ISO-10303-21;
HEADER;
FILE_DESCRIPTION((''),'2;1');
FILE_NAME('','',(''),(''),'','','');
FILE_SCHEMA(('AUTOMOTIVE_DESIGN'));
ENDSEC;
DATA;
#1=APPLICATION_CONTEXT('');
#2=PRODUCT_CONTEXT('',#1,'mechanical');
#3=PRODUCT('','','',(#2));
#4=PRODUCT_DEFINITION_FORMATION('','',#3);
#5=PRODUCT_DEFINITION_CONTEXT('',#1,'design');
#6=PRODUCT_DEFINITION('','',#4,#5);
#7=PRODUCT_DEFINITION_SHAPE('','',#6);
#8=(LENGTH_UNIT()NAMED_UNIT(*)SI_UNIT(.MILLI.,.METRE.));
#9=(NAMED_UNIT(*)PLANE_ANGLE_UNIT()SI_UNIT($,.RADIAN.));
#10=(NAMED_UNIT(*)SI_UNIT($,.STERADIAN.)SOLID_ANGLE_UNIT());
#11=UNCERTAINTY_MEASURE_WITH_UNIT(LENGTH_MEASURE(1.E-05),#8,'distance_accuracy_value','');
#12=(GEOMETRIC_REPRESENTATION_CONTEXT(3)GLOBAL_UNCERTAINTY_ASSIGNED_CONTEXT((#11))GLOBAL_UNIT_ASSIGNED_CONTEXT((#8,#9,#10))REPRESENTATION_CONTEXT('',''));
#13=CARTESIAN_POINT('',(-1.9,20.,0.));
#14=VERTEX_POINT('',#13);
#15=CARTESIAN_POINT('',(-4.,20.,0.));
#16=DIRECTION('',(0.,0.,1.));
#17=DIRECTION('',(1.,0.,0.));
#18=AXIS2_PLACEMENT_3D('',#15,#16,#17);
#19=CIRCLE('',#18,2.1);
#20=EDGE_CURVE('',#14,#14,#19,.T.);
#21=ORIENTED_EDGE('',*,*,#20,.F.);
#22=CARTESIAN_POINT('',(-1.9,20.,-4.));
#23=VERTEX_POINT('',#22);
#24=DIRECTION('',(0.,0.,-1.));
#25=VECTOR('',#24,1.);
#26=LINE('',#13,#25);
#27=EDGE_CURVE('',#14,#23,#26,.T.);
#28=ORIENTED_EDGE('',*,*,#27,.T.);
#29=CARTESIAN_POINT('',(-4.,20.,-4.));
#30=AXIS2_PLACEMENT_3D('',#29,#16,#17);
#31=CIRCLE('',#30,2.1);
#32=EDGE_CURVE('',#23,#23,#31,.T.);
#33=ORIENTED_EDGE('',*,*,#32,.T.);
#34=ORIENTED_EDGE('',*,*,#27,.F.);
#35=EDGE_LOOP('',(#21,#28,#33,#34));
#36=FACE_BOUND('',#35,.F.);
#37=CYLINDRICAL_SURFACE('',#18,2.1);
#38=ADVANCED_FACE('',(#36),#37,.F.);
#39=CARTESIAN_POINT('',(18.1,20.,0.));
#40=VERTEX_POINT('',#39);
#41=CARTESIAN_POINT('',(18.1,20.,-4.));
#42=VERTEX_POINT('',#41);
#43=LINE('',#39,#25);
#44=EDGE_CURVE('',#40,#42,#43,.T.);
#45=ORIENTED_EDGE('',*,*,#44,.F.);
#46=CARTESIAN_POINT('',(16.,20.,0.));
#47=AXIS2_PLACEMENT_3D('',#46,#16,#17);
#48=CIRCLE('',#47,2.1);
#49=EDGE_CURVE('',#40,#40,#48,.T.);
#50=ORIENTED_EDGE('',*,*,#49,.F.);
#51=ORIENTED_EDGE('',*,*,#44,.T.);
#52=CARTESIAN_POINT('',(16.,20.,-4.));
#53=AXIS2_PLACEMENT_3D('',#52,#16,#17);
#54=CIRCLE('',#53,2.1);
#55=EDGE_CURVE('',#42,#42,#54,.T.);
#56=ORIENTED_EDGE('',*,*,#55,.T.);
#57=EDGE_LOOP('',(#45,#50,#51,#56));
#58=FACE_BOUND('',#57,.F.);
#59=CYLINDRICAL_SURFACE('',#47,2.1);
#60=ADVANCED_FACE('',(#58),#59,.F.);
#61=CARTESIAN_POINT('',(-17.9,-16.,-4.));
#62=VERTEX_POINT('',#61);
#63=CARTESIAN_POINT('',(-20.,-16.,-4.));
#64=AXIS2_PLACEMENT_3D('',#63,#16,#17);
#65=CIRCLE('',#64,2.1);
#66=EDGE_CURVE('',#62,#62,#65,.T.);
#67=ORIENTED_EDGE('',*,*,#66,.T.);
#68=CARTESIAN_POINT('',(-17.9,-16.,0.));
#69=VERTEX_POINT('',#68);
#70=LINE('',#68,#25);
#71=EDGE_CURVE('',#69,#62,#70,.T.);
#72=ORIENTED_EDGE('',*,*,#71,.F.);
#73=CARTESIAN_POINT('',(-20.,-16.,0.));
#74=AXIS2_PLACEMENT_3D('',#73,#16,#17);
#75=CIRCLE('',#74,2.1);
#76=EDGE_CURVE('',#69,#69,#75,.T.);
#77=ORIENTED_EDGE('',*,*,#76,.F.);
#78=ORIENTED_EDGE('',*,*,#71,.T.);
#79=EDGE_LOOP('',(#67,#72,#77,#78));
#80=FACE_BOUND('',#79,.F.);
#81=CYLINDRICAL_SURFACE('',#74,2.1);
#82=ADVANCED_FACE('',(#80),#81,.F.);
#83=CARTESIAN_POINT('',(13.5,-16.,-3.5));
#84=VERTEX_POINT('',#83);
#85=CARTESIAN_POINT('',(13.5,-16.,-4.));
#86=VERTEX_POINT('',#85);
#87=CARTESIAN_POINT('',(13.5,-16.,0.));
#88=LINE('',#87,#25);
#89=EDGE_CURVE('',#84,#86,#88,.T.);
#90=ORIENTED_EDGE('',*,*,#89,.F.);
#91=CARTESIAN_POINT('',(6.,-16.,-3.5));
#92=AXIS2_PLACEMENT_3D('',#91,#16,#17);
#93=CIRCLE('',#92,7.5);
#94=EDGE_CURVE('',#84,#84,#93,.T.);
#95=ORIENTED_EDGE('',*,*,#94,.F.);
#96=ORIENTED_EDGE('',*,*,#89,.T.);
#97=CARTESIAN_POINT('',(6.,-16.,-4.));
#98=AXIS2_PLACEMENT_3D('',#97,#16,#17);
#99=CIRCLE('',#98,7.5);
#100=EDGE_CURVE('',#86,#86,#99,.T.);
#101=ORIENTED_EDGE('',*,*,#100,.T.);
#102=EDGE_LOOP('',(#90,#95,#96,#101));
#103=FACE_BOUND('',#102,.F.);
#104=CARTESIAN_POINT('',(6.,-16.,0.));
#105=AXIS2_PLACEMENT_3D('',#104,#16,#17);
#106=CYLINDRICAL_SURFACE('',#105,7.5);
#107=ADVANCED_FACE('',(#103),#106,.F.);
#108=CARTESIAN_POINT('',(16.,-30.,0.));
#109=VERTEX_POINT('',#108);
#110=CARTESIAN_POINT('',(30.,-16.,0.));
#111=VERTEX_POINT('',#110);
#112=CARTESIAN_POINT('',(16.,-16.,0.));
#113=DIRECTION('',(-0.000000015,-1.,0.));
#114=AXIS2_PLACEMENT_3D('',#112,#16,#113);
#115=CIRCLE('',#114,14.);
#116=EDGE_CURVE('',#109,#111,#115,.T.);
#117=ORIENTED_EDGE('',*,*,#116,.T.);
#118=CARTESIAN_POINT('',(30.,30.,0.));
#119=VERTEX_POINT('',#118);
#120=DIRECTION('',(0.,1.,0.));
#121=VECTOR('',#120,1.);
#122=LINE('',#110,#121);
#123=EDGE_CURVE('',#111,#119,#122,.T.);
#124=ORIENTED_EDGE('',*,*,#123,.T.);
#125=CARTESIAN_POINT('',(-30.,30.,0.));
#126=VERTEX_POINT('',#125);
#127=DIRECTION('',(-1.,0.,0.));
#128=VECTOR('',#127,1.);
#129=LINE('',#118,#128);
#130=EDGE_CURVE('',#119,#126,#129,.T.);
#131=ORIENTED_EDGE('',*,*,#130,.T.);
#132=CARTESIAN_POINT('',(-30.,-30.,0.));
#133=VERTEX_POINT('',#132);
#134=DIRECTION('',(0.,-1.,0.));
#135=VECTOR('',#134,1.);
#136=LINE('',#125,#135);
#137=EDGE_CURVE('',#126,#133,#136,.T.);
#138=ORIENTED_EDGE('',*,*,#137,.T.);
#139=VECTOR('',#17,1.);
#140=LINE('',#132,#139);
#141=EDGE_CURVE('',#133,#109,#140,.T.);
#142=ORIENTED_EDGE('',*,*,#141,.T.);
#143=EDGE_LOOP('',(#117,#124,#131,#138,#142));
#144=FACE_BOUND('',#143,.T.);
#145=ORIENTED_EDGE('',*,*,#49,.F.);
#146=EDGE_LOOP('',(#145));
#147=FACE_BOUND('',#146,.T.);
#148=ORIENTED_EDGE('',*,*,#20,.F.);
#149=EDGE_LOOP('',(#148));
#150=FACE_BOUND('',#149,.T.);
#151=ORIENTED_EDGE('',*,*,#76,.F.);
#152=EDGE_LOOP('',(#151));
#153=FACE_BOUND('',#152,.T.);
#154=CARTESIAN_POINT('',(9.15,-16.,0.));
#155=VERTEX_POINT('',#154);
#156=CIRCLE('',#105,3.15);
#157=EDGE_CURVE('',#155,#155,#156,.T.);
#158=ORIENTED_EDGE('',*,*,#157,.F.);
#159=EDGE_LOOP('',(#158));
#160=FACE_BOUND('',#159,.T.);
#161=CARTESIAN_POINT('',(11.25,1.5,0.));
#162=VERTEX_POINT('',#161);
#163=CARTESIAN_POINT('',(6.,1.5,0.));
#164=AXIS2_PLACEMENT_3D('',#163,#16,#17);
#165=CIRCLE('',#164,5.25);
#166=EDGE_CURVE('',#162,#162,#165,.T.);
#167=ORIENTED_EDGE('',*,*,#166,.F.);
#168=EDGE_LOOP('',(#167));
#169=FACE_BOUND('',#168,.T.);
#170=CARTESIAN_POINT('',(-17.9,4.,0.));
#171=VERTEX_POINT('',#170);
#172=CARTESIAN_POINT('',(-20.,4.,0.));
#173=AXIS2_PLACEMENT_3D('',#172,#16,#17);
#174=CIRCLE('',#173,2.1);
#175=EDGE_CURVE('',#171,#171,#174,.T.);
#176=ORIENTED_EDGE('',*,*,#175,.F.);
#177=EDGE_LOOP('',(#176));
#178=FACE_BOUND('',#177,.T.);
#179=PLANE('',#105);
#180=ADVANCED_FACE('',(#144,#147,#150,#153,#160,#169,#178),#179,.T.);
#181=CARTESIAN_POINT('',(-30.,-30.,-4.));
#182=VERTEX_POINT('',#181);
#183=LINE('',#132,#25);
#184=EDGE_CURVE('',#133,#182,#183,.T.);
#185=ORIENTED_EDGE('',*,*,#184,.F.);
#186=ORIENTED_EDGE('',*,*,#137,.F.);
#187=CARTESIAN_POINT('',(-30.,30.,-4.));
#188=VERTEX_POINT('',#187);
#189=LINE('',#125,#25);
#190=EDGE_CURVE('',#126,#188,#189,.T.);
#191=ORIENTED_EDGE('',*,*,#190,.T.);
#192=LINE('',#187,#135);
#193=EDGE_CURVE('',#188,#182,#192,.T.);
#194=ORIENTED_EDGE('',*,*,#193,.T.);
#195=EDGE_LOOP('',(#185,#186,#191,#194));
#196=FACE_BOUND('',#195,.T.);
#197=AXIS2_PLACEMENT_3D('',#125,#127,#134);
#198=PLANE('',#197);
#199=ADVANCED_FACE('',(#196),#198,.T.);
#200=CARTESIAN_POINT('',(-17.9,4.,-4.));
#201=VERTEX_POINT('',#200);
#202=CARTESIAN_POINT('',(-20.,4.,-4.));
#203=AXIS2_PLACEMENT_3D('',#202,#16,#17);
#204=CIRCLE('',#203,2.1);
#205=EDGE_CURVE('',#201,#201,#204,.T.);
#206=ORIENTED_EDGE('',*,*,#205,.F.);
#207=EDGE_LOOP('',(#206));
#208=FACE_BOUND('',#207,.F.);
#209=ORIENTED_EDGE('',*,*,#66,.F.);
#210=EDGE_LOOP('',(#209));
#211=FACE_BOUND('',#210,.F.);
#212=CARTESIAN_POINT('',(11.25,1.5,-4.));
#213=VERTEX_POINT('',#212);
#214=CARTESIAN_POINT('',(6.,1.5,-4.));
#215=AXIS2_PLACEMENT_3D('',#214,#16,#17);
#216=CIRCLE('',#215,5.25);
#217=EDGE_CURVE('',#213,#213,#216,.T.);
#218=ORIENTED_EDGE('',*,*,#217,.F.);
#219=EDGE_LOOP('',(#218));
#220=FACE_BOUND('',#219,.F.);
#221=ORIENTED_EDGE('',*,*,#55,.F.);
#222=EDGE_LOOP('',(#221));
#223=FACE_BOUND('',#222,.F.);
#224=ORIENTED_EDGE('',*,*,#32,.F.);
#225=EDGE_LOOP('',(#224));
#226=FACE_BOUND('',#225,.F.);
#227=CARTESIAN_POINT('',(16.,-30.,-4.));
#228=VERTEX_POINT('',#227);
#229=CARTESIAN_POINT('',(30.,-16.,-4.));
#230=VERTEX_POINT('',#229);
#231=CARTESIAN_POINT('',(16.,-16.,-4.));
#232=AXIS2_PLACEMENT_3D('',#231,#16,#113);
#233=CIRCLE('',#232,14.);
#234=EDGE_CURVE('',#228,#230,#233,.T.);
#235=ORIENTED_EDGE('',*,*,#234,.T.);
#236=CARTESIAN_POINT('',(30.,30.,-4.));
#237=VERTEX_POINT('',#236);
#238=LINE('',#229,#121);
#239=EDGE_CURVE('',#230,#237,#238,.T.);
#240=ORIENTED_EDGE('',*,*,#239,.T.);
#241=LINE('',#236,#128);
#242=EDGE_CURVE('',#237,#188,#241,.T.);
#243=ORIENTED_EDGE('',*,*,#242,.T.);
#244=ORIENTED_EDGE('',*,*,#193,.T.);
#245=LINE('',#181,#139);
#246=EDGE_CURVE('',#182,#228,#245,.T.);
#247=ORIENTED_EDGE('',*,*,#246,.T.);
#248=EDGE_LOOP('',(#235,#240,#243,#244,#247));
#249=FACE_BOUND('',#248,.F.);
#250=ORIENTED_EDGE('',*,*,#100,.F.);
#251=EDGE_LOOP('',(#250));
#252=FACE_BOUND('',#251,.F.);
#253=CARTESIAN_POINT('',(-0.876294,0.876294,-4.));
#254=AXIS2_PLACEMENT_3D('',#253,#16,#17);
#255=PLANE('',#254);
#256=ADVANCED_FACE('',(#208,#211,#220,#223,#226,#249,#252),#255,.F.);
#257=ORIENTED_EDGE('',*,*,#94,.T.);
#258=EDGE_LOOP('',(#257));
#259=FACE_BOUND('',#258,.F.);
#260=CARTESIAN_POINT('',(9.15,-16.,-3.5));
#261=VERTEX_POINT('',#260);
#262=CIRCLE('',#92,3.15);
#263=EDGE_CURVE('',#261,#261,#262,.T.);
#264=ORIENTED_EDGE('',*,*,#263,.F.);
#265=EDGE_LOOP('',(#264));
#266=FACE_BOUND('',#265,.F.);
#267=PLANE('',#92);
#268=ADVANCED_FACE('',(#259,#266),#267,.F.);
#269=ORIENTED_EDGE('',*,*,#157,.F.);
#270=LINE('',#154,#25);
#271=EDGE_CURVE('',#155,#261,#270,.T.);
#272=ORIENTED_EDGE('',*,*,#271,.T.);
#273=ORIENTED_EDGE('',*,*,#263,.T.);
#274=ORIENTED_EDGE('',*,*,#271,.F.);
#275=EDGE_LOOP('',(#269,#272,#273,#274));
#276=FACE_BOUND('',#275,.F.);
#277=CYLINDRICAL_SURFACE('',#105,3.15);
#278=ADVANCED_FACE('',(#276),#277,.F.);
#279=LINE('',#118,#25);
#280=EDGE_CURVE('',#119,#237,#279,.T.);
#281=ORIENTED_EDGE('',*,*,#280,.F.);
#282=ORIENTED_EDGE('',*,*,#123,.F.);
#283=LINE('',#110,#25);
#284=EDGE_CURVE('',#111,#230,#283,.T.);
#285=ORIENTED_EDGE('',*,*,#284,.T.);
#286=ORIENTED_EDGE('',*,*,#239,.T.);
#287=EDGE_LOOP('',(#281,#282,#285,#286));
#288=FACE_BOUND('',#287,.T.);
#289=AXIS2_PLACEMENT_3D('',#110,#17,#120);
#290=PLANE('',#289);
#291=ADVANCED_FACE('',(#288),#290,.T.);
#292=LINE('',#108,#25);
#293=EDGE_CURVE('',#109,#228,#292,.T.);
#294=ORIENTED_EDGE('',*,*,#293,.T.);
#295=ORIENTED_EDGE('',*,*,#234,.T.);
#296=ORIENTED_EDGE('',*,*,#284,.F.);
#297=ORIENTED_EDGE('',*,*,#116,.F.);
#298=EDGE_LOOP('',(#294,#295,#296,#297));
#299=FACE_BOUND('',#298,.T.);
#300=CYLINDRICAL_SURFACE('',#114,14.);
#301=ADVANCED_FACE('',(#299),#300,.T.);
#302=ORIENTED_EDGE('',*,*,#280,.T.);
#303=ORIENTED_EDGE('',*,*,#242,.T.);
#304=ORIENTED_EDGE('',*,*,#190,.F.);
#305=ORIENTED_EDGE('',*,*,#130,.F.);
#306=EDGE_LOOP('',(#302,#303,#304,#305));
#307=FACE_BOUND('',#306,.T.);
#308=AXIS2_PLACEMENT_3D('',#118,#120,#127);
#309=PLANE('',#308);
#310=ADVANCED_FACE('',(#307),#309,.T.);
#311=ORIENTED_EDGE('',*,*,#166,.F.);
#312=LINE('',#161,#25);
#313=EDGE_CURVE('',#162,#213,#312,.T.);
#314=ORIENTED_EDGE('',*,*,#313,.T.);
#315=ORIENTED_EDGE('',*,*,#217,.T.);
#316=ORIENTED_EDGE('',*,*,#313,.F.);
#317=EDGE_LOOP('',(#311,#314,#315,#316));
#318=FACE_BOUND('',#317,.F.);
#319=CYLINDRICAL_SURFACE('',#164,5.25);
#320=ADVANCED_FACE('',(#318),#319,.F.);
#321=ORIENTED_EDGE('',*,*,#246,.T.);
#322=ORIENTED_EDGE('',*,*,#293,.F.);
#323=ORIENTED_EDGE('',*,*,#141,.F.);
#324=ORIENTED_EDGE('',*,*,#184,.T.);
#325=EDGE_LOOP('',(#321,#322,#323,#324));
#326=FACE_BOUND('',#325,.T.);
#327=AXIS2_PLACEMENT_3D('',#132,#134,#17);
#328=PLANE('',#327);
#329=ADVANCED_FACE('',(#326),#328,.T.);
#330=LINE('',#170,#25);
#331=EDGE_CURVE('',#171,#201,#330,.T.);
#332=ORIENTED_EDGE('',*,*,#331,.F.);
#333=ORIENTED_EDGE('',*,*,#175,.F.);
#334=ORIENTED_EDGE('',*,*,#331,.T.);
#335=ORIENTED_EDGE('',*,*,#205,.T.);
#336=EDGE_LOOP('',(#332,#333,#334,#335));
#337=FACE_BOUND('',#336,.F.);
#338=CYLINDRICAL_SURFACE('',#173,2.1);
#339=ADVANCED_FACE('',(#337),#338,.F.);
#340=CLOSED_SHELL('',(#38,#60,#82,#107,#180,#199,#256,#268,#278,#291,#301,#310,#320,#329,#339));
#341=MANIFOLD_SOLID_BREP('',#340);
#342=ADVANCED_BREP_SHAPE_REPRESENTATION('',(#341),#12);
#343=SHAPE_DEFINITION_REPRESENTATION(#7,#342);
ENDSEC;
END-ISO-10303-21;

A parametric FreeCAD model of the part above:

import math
import FreeCAD as App
import Part
import Sketcher

V = App.Vector

doc = App.newDocument("Part")
body = doc.addObject("PartDesign::Body", "Body")

# Sketch on XY plane
sketch1 = doc.addObject("Sketcher::SketchObject", "Sketch")
body.addObject(sketch1)
sketch1.AttachmentSupport = (doc.XY_Plane, [""])
sketch1.MapMode = "FlatFace"
sketch1.addGeometry(Part.LineSegment(V(30, -16, 0), V(30, 30, 0)), False)
sketch1.addGeometry(Part.LineSegment(V(30, 30, 0), V(-30, 30, 0)), False)
sketch1.addGeometry(Part.LineSegment(V(-30, 30, 0), V(-30, -30, 0)), False)
sketch1.addGeometry(Part.LineSegment(V(-30, -30, 0), V(16, -30, 0)), False)
sketch1.addGeometry(Part.ArcOfCircle(Part.Circle(V(16, -16, 0), V(0, 0, 1), 14), math.radians(-90), math.radians(0)), False)
sketch1.addGeometry(Part.Circle(V(-20, -16, 0), V(0, 0, 1), 2.1), False)
sketch1.addGeometry(Part.Circle(V(6, -16, 0), V(0, 0, 1), 7.5), False)
sketch1.addGeometry(Part.Circle(V(-20, 4, 0), V(0, 0, 1), 2.1), False)
sketch1.addGeometry(Part.Circle(V(-4, 20, 0), V(0, 0, 1), 2.1), False)
sketch1.addGeometry(Part.Circle(V(6, 1.5, 0), V(0, 0, 1), 5.2), False)
sketch1.addGeometry(Part.Circle(V(16, 20, 0), V(0, 0, 1), 2.1), False)
sketch1.addConstraint(Sketcher.Constraint("Coincident", 0, 2, 1, 1))
sketch1.addConstraint(Sketcher.Constraint("Coincident", 1, 2, 2, 1))
sketch1.addConstraint(Sketcher.Constraint("Coincident", 2, 2, 3, 1))
sketch1.addConstraint(Sketcher.Constraint("Tangent", 3, 2, 4, 1))
sketch1.addConstraint(Sketcher.Constraint("Tangent", 4, 2, 0, 1))
sketch1.addConstraint(Sketcher.Constraint("Vertical", 0))
sketch1.addConstraint(Sketcher.Constraint("Horizontal", 1))
sketch1.addConstraint(Sketcher.Constraint("Vertical", 2))
sketch1.addConstraint(Sketcher.Constraint("Horizontal", 3))
sketch1.addConstraint(Sketcher.Constraint("Equal", 5, 7))
sketch1.addConstraint(Sketcher.Constraint("Equal", 7, 8))
sketch1.addConstraint(Sketcher.Constraint("Equal", 8, 10))
sketch1.addConstraint(Sketcher.Constraint("Symmetric", 0, 2, 2, 2, -1, 1))
sketch1.addConstraint(Sketcher.Constraint("Horizontal", 4, 3, 5, 3))
sketch1.addConstraint(Sketcher.Constraint("Horizontal", 5, 3, 6, 3))
sketch1.addConstraint(Sketcher.Constraint("Horizontal", 8, 3, 10, 3))
sketch1.addConstraint(Sketcher.Constraint("Vertical", 5, 3, 7, 3))
sketch1.addConstraint(Sketcher.Constraint("Vertical", 6, 3, 9, 3))
sketch1.addConstraint(Sketcher.Constraint("Vertical", 4, 3, 10, 3))
sketch1.addConstraint(Sketcher.Constraint("Equal", 3, 0))
sketch1.addConstraint(Sketcher.Constraint("Diameter", 6, 15.0))
sketch1.addConstraint(Sketcher.Constraint("Radius", 4, 14.0))
sketch1.addConstraint(Sketcher.Constraint("Diameter", 5, 4.2))
sketch1.addConstraint(Sketcher.Constraint("Diameter", 9, 10.5))
sketch1.addConstraint(Sketcher.Constraint("DistanceX", 1, 2, 1, 1, 60.0))
sketch1.addConstraint(Sketcher.Constraint("DistanceX", 5, 3, -1, 1, 20.0))
sketch1.addConstraint(Sketcher.Constraint("DistanceX", -1, 1, 6, 3, 6.0))
sketch1.addConstraint(Sketcher.Constraint("DistanceY", -1, 1, 7, 3, 4.0))
sketch1.addConstraint(Sketcher.Constraint("DistanceX", 8, 3, -1, 1, 4.0))
sketch1.addConstraint(Sketcher.Constraint("DistanceY", -1, 1, 8, 3, 20.0))
sketch1.addConstraint(Sketcher.Constraint("DistanceY", -1, 1, 9, 3, 1.5))
pad1 = doc.addObject("PartDesign::Pad", "Pad")
body.addObject(pad1)
pad1.Profile = sketch1
pad1.Length = 4
pad1.Reversed = True

# Sketch on XY plane
sketch2 = doc.addObject("Sketcher::SketchObject", "Sketch001")
body.addObject(sketch2)
sketch2.AttachmentSupport = (doc.XY_Plane, [""])
sketch2.MapMode = "FlatFace"
sketch2.addGeometry(Part.Circle(V(6, -16, 0), V(0, 0, 1), 7.5), False)
sketch2.addGeometry(Part.Circle(V(6, -16, 0), V(0, 0, 1), 3.1), False)
sketch2.addConstraint(Sketcher.Constraint("Coincident", 1, 3, 0, 3))
sketch2.addConstraint(Sketcher.Constraint("Diameter", 0, 15.0))
sketch2.addConstraint(Sketcher.Constraint("Diameter", 1, 6.3))
sketch2.addConstraint(Sketcher.Constraint("DistanceX", -1, 1, 0, 3, 6.0))
sketch2.addConstraint(Sketcher.Constraint("DistanceY", 0, 3, -1, 1, 16.0))
pad2 = doc.addObject("PartDesign::Pad", "Pad001")
body.addObject(pad2)
pad2.Profile = sketch2
pad2.Length = 3.5
pad2.Reversed = True

doc.recompute()
